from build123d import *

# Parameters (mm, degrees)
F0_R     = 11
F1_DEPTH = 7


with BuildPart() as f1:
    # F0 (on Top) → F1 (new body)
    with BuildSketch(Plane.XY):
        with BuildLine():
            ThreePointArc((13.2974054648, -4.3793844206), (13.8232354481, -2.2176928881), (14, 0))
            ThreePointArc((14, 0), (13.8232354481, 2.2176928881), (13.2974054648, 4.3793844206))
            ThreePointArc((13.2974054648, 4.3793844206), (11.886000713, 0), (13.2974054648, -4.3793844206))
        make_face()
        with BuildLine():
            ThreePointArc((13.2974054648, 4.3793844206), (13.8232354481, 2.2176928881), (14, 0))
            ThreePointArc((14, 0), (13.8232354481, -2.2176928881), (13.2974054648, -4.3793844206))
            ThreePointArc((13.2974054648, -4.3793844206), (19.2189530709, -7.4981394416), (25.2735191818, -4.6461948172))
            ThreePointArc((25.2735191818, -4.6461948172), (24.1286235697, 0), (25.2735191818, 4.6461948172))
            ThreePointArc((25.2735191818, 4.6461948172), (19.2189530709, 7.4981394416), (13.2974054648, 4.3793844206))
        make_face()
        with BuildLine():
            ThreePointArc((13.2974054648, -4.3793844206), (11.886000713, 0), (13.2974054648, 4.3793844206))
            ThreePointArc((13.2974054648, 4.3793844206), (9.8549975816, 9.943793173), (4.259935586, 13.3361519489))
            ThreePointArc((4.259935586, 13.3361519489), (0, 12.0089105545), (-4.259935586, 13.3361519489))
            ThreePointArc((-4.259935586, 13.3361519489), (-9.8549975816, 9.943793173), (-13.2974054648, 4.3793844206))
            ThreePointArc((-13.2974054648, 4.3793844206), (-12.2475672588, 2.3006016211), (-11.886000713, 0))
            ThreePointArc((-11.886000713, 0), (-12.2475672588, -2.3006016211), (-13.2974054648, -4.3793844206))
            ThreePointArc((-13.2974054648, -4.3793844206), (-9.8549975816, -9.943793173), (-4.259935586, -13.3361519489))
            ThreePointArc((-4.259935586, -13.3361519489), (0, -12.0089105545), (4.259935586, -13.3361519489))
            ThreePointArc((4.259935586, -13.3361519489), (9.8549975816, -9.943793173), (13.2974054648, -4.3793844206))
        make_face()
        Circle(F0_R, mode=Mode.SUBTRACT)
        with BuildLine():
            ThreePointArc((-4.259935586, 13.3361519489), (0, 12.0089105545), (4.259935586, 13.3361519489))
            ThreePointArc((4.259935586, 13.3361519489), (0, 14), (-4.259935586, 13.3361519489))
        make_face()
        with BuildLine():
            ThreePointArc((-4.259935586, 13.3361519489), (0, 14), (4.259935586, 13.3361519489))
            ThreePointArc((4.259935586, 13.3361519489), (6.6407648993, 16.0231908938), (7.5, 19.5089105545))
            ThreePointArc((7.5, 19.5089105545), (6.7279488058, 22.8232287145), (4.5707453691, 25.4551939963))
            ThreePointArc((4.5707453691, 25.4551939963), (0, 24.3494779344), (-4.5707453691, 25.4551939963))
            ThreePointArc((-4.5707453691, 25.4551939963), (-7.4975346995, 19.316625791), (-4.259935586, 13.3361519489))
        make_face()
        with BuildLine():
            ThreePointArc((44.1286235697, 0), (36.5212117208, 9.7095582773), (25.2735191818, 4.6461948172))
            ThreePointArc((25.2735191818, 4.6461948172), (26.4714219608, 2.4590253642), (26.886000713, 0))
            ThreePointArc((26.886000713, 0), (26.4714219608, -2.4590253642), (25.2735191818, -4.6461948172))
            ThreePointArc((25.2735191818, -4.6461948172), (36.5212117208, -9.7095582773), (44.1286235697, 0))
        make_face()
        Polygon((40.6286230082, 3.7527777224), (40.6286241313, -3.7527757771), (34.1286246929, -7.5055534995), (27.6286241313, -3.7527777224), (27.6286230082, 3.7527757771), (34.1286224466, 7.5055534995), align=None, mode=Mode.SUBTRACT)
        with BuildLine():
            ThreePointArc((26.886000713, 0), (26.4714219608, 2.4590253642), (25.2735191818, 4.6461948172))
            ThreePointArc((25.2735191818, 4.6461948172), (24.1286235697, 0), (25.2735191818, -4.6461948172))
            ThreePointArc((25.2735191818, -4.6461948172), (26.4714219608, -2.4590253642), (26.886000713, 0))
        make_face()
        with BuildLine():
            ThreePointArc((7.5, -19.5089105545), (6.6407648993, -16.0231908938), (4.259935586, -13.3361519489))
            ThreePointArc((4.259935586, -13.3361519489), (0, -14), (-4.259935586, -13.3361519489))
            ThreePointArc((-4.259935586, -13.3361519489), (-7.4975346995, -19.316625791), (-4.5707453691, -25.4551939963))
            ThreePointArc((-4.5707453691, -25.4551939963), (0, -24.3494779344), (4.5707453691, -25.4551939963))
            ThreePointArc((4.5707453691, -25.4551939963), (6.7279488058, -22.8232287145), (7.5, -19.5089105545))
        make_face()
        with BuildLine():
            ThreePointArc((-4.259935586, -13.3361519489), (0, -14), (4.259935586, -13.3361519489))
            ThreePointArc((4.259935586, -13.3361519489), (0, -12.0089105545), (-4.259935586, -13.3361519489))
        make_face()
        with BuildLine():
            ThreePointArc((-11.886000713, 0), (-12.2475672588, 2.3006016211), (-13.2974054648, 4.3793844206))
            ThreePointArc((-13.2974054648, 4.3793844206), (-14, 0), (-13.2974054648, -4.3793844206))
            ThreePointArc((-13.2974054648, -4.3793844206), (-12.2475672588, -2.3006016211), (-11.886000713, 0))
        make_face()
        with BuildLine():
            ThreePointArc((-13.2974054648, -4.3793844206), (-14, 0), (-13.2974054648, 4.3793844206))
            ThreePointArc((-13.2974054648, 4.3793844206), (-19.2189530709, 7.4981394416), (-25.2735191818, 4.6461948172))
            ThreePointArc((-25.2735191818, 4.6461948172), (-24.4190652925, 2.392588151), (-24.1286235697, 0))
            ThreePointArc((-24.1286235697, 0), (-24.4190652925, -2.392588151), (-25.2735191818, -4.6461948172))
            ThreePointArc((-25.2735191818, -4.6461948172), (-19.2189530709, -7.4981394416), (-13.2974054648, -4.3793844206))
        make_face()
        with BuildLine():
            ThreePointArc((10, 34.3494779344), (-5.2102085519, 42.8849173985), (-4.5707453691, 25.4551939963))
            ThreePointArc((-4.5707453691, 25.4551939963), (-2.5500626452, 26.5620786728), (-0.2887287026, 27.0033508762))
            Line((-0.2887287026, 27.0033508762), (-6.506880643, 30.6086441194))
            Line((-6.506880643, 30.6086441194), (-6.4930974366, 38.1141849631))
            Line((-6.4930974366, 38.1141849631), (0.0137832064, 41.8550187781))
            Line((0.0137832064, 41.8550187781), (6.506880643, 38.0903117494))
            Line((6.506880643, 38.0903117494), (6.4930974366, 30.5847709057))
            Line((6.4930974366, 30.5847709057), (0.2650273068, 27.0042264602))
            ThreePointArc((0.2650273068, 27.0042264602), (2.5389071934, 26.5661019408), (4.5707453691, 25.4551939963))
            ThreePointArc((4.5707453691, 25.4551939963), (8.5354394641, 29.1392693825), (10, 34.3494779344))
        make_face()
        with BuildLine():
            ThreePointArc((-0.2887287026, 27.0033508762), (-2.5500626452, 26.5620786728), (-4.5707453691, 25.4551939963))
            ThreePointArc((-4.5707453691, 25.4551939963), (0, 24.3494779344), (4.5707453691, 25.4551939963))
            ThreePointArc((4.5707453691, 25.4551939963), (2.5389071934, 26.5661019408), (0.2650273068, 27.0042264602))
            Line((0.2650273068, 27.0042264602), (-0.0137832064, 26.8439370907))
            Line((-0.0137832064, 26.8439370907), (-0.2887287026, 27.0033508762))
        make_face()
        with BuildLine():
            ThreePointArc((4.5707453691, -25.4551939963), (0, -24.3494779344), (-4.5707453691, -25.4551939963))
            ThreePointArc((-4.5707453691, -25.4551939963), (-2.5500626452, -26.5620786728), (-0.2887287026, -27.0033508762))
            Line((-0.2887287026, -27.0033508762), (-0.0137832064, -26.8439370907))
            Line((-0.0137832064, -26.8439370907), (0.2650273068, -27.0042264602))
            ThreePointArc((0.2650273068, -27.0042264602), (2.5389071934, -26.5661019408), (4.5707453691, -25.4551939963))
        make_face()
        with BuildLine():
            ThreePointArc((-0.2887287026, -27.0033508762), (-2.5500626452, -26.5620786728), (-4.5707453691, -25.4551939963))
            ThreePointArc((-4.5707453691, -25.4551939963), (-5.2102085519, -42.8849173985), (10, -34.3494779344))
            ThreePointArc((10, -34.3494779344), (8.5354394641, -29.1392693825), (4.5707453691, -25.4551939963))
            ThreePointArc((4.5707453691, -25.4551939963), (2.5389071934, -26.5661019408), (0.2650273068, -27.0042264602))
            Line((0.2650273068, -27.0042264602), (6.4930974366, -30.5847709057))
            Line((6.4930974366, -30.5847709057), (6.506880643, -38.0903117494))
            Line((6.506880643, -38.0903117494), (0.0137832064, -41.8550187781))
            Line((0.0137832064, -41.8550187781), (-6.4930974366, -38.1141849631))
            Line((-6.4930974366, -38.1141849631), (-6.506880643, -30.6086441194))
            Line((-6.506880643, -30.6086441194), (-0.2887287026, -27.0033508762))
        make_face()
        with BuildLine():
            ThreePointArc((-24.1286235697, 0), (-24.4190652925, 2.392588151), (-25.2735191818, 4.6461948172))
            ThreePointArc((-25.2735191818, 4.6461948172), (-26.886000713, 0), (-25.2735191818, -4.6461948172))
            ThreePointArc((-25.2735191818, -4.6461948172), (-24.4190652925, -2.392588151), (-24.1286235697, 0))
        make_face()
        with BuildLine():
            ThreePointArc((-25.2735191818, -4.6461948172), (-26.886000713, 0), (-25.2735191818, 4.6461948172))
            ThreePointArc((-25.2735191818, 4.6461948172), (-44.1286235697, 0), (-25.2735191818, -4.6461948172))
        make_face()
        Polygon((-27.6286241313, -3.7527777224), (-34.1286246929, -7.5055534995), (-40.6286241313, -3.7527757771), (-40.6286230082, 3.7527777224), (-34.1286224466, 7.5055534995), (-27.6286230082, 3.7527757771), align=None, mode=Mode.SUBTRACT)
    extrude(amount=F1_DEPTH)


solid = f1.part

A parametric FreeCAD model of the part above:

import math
import FreeCAD as App
import Part
import Sketcher
Q = App.Units.Quantity

doc = App.newDocument("Part")
body = doc.addObject("PartDesign::Body", "Body")

sketch1 = doc.addObject("Sketcher::SketchObject", "Sketch")
body.addObject(sketch1)
sketch1.AttachmentSupport = (doc.XY_Plane, [""])
sketch1.MapMode = "FlatFace"
sketch1.addGeometry([
    Part.ArcOfCircle(Part.Circle(App.Vector(19.39, 0, 0), App.Vector(0, 0, 1), 7.5), math.radians(-144), math.radians(-38)),
    Part.ArcOfCircle(Part.Circle(App.Vector(34.13, 0, 0), App.Vector(0, 0, 1), 10), math.radians(-152), math.radians(0)),
    Part.ArcOfCircle(Part.Circle(App.Vector(34.13, 0, 0), App.Vector(0, 0, 1), 10), math.radians(0), math.radians(152)),
    Part.ArcOfCircle(Part.Circle(App.Vector(19.39, 0, 0), App.Vector(0, 0, 1), 7.5), math.radians(38), math.radians(144)),
    Part.ArcOfCircle(Part.Circle(App.Vector(0, 0, 0), App.Vector(0, 0, 1), 14), math.radians(18), math.radians(72)),
    Part.ArcOfCircle(Part.Circle(App.Vector(0, 19.51, 0), App.Vector(0, 0, 1), 7.5), math.radians(-55), math.radians(0)),
    Part.ArcOfCircle(Part.Circle(App.Vector(0, 19.51, 0), App.Vector(0, 0, 1), 7.5), math.radians(0), math.radians(52)),
    Part.ArcOfCircle(Part.Circle(App.Vector(0, 34.35, 0), App.Vector(0, 0, 1), 10), math.radians(-63), math.radians(0)),
    Part.ArcOfCircle(Part.Circle(App.Vector(0, 34.35, 0), App.Vector(0, 0, 1), 10), math.radians(0), math.radians(243)),
    Part.ArcOfCircle(Part.Circle(App.Vector(0, 19.51, 0), App.Vector(0, 0, 1), 7.5), math.radians(128), math.radians(235)),
    Part.ArcOfCircle(Part.Circle(App.Vector(0, 0, 0), App.Vector(0, 0, 1), 14), math.radians(108), math.radians(162)),
    Part.ArcOfCircle(Part.Circle(App.Vector(-19.39, 0, 0), App.Vector(0, 0, 1), 7.5), math.radians(36), math.radians(142)),
    Part.ArcOfCircle(Part.Circle(App.Vector(-34.13, 0, 0), App.Vector(0, 0, 1), 10), math.radians(28), math.radians(332)),
    Part.ArcOfCircle(Part.Circle(App.Vector(-19.39, 0, 0), App.Vector(0, 0, 1), 7.5), math.radians(-142), math.radians(-36)),
    Part.ArcOfCircle(Part.Circle(App.Vector(0, 0, 0), App.Vector(0, 0, 1), 14), math.radians(-162), math.radians(-108)),
    Part.ArcOfCircle(Part.Circle(App.Vector(0, -19.51, 0), App.Vector(0, 0, 1), 7.5), math.radians(125), math.radians(232)),
    Part.ArcOfCircle(Part.Circle(App.Vector(0, -34.35, 0), App.Vector(0, 0, 1), 10), math.radians(117), math.radians(360)),
    Part.ArcOfCircle(Part.Circle(App.Vector(0, -34.35, 0), App.Vector(0, 0, 1), 10), math.radians(0), math.radians(63)),
    Part.ArcOfCircle(Part.Circle(App.Vector(0, -19.51, 0), App.Vector(0, 0, 1), 7.5), math.radians(-52), math.radians(0)),
    Part.ArcOfCircle(Part.Circle(App.Vector(0, -19.51, 0), App.Vector(0, 0, 1), 7.5), math.radians(0), math.radians(55)),
    Part.ArcOfCircle(Part.Circle(App.Vector(0, 0, 0), App.Vector(0, 0, 1), 14), math.radians(-72), math.radians(-18)),
    Part.LineSegment(App.Vector(-27.63, 3.75, 0), App.Vector(-27.63, -3.75, 0)),
    Part.LineSegment(App.Vector(-27.63, -3.75, 0), App.Vector(-34.13, -7.51, 0)),
    Part.LineSegment(App.Vector(-34.13, -7.51, 0), App.Vector(-40.63, -3.75, 0)),
    Part.LineSegment(App.Vector(-40.63, -3.75, 0), App.Vector(-40.63, 3.75, 0)),
    Part.LineSegment(App.Vector(-40.63, 3.75, 0), App.Vector(-34.13, 7.51, 0)),
    Part.LineSegment(App.Vector(-34.13, 7.51, 0), App.Vector(-27.63, 3.75, 0)),
    Part.LineSegment(App.Vector(-0.29, -27, 0), App.Vector(-0.01, -26.84, 0)),
    Part.LineSegment(App.Vector(-0.01, -26.84, 0), App.Vector(0.27, -27, 0)),
    Part.LineSegment(App.Vector(0.27, -27, 0), App.Vector(6.49, -30.58, 0)),
    Part.LineSegment(App.Vector(6.49, -30.58, 0), App.Vector(6.51, -38.09, 0)),
    Part.LineSegment(App.Vector(6.51, -38.09, 0), App.Vector(0.01, -41.86, 0)),
    Part.LineSegment(App.Vector(0.01, -41.86, 0), App.Vector(-6.49, -38.11, 0)),
    Part.LineSegment(App.Vector(-6.49, -38.11, 0), App.Vector(-6.51, -30.61, 0)),
    Part.LineSegment(App.Vector(-6.51, -30.61, 0), App.Vector(-0.29, -27, 0)),
    Part.Circle(App.Vector(0, 0, 0), App.Vector(0, 0, 1), 11),
    Part.LineSegment(App.Vector(40.63, 3.75, 0), App.Vector(40.63, -3.75, 0)),
    Part.LineSegment(App.Vector(40.63, -3.75, 0), App.Vector(34.13, -7.51, 0)),
    Part.LineSegment(App.Vector(34.13, -7.51, 0), App.Vector(27.63, -3.75, 0)),
    Part.LineSegment(App.Vector(27.63, -3.75, 0), App.Vector(27.63, 3.75, 0)),
    Part.LineSegment(App.Vector(27.63, 3.75, 0), App.Vector(34.13, 7.51, 0)),
    Part.LineSegment(App.Vector(34.13, 7.51, 0), App.Vector(40.63, 3.75, 0)),
    Part.LineSegment(App.Vector(-0.01, 26.84, 0), App.Vector(-0.29, 27, 0)),
    Part.LineSegment(App.Vector(-0.29, 27, 0), App.Vector(-6.51, 30.61, 0)),
    Part.LineSegment(App.Vector(-6.51, 30.61, 0), App.Vector(-6.49, 38.11, 0)),
    Part.LineSegment(App.Vector(-6.49, 38.11, 0), App.Vector(0.01, 41.86, 0)),
    Part.LineSegment(App.Vector(0.01, 41.86, 0), App.Vector(6.51, 38.09, 0)),
    Part.LineSegment(App.Vector(6.51, 38.09, 0), App.Vector(6.49, 30.58, 0)),
    Part.LineSegment(App.Vector(6.49, 30.58, 0), App.Vector(0.27, 27, 0)),
    Part.LineSegment(App.Vector(0.27, 27, 0), App.Vector(-0.01, 26.84, 0)),
], False)
sketch1.addConstraint([
    Sketcher.Constraint("Coincident", 0, 2, 1, 1),
    Sketcher.Constraint("Tangent", 1, 2, 2, 1),
    Sketcher.Constraint("Coincident", 2, 2, 3, 1),
    Sketcher.Constraint("Coincident", 3, 2, 4, 1),
    Sketcher.Constraint("Coincident", 4, 2, 5, 1),
    Sketcher.Constraint("Tangent", 5, 2, 6, 1),
    Sketcher.Constraint("Coincident", 6, 2, 7, 1),
    Sketcher.Constraint("Tangent", 7, 2, 8, 1),
    Sketcher.Constraint("Coincident", 8, 2, 9, 1),
    Sketcher.Constraint("Coincident", 9, 2, 10, 1),
    Sketcher.Constraint("Coincident", 10, 2, 11, 1),
    Sketcher.Constraint("Coincident", 11, 2, 12, 1),
    Sketcher.Constraint("Coincident", 12, 2, 13, 1),
    Sketcher.Constraint("Coincident", 13, 2, 14, 1),
    Sketcher.Constraint("Coincident", 14, 2, 15, 1),
    Sketcher.Constraint("Coincident", 15, 2, 16, 1),
    Sketcher.Constraint("Tangent", 16, 2, 17, 1),
    Sketcher.Constraint("Coincident", 17, 2, 18, 1),
    Sketcher.Constraint("Tangent", 18, 2, 19, 1),
    Sketcher.Constraint("Coincident", 19, 2, 20, 1),
    Sketcher.Constraint("Coincident", 20, 2, 0, 1),
    Sketcher.Constraint("Coincident", 21, 2, 22, 1),
    Sketcher.Constraint("Coincident", 22, 2, 23, 1),
    Sketcher.Constraint("Coincident", 23, 2, 24, 1),
    Sketcher.Constraint("Coincident", 24, 2, 25, 1),
    Sketcher.Constraint("Coincident", 25, 2, 26, 1),
    Sketcher.Constraint("Coincident", 26, 2, 21, 1),
    Sketcher.Constraint("Coincident", 27, 2, 28, 1),
    Sketcher.Constraint("Coincident", 28, 2, 29, 1),
    Sketcher.Constraint("Coincident", 29, 2, 30, 1),
    Sketcher.Constraint("Coincident", 30, 2, 31, 1),
    Sketcher.Constraint("Coincident", 31, 2, 32, 1),
    Sketcher.Constraint("Coincident", 32, 2, 33, 1),
    Sketcher.Constraint("Coincident", 33, 2, 34, 1),
    Sketcher.Constraint("Coincident", 34, 2, 27, 1),
    Sketcher.Constraint("Coincident", 36, 2, 37, 1),
    Sketcher.Constraint("Coincident", 37, 2, 38, 1),
    Sketcher.Constraint("Coincident", 38, 2, 39, 1),
    Sketcher.Constraint("Coincident", 39, 2, 40, 1),
    Sketcher.Constraint("Coincident", 40, 2, 41, 1),
    Sketcher.Constraint("Coincident", 41, 2, 36, 1),
    Sketcher.Constraint("Coincident", 42, 2, 43, 1),
    Sketcher.Constraint("Coincident", 43, 2, 44, 1),
    Sketcher.Constraint("Coincident", 44, 2, 45, 1),
    Sketcher.Constraint("Coincident", 45, 2, 46, 1),
    Sketcher.Constraint("Coincident", 46, 2, 47, 1),
    Sketcher.Constraint("Coincident", 47, 2, 48, 1),
    Sketcher.Constraint("Coincident", 48, 2, 49, 1),
    Sketcher.Constraint("Coincident", 49, 2, 42, 1),
    Sketcher.Constraint("Vertical", 21),
    Sketcher.Constraint("Vertical", 24),
    Sketcher.Constraint("Vertical", 36),
    Sketcher.Constraint("Vertical", 39),
    Sketcher.Constraint("Coincident", 4, 3, -1, 1),
    Sketcher.Constraint("Coincident", 10, 3, -1, 1),
    Sketcher.Constraint("Coincident", 14, 3, -1, 1),
    Sketcher.Constraint("Coincident", 20, 3, -1, 1),
    Sketcher.Constraint("Coincident", 35, 3, -1, 1),
    Sketcher.Constraint("Coincident", 3, 3, 0, 3),
    Sketcher.Constraint("Coincident", 9, 3, 5, 3),
    Sketcher.Constraint("Coincident", 13, 3, 11, 3),
    Sketcher.Constraint("Coincident", 18, 3, 15, 3),
    Sketcher.Constraint("Equal", 1, 2),
    Sketcher.Constraint("Equal", 0, 3),
    Sketcher.Constraint("Equal", 3, 5),
    Sketcher.Constraint("Equal", 5, 6),
    Sketcher.Constraint("Equal", 2, 7),
    Sketcher.Constraint("Equal", 7, 8),
    Sketcher.Constraint("Equal", 6, 9),
    Sketcher.Constraint("Equal", 4, 10),
    Sketcher.Constraint("Equal", 9, 11),
    Sketcher.Constraint("Equal", 8, 12),
    Sketcher.Constraint("Equal", 11, 13),
    Sketcher.Constraint("Equal", 10, 14),
    Sketcher.Constraint("Equal", 13, 15),
    Sketcher.Constraint("Equal", 12, 16),
    Sketcher.Constraint("Equal", 16, 17),
    Sketcher.Constraint("Equal", 15, 18),
    Sketcher.Constraint("Equal", 18, 19),
    Sketcher.Constraint("Equal", 14, 20),
    Sketcher.Constraint("Symmetric", 0, 3, 11, 3, -1, 1),
    Sketcher.Constraint("Symmetric", 1, 3, 12, 3, -1, 1),
    Sketcher.Constraint("Symmetric", 5, 3, 15, 3, -1, 1),
    Sketcher.Constraint("Symmetric", 7, 3, 16, 3, -1, 1),
    Sketcher.Constraint("Symmetric", 24, 2, 36, 2, -1, 1),
    Sketcher.Constraint("Symmetric", 25, 2, 37, 2, -1, 1),
    Sketcher.Constraint("Symmetric", 26, 2, 38, 2, -1, 1),
    Sketcher.Constraint("Symmetric", 22, 2, 40, 2, -1, 1),
    Sketcher.Constraint("Symmetric", 6, 2, 8, 2, -2),
    Sketcher.Constraint("Symmetric", 2, 2, 11, 2, -2),
    Sketcher.Constraint("Symmetric", 22, 2, 37, 2, -2),
    Sketcher.Constraint("Symmetric", 34, 2, 42, 2, -1),
    Sketcher.Constraint("Symmetric", 33, 2, 43, 2, -1),
    Sketcher.Constraint("Symmetric", 32, 2, 44, 2, -1),
    Sketcher.Constraint("Symmetric", 31, 2, 45, 2, -1),
    Sketcher.Constraint("Symmetric", 30, 2, 46, 2, -1),
    Sketcher.Constraint("Symmetric", 29, 2, 47, 2, -1),
    Sketcher.Constraint("Symmetric", 28, 2, 48, 2, -1),
    Sketcher.Constraint("Symmetric", 27, 2, 49, 2, -1),
    Sketcher.Constraint("PointOnObject", 1, 2, -1),
    Sketcher.Constraint("Parallel", 22, 25),
    Sketcher.Constraint("Parallel", 23, 26),
    Sketcher.Constraint("Parallel", 28, 29),
    Sketcher.Constraint("Parallel", 27, 31),
    Sketcher.Constraint("Parallel", 29, 32),
    Sketcher.Constraint("Parallel", 30, 33),
    Sketcher.Constraint("Parallel", 31, 34),
    Sketcher.Constraint("Parallel", 37, 40),
    Sketcher.Constraint("Parallel", 38, 41),
    Sketcher.Constraint("Horizontal", 9, 3, 5, 2),
    Sketcher.Constraint("Horizontal", 8, 3, 7, 2),
    Sketcher.Constraint("Horizontal", 17, 3, 16, 2),
    Sketcher.Constraint("Horizontal", 19, 3, 18, 2),
    Sketcher.Constraint("Horizontal", 21, 2, 23, 2),
    Sketcher.Constraint("Horizontal", 24, 2, 26, 2),
    Sketcher.Constraint("Vertical", 12, 3, 22, 2),
    Sketcher.Constraint("Equal", 26, 30),
    Sketcher.Constraint("Equal", 30, 31),
    Sketcher.Constraint("Equal", 31, 32),
    Sketcher.Constraint("Equal", 32, 33),
    Sketcher.Constraint("Diameter", 35, Q("22 mm")),
    Sketcher.Constraint("Radius", 1, Q("10 mm")),
    Sketcher.Constraint("Radius", 4, Q("14 mm")),
    Sketcher.Constraint("Radius", 0, Q("7.5 mm")),
    Sketcher.Constraint("Angle", 22, Q("-150.000009 deg")),
    Sketcher.Constraint("DistanceX", -1, 1, 0, 3, Q("19.386001 mm")),
    Sketcher.Constraint("Distance", 29, Q("7.183951 mm")),
    Sketcher.Constraint("DistanceY", 21, 2, 21, 1, Q("7.505553 mm")),
    Sketcher.Constraint("DistanceY", -1, 1, 5, 3, Q("19.508911 mm")),
    Sketcher.Constraint("DistanceX", -1, 1, 0, 2, Q("25.273519 mm")),
    Sketcher.Constraint("DistanceY", 29, 2, -1, 1, Q("30.584771 mm")),
    Sketcher.Constraint("DistanceX", -1, 1, 30, 2, Q("6.506881 mm")),
    Sketcher.Constraint("DistanceY", 30, 2, -1, 1, Q("38.090312 mm")),
    Sketcher.Constraint("DistanceY", 31, 2, -1, 1, Q("41.855019 mm")),
    Sketcher.Constraint("DistanceX", 33, 2, -1, 1, Q("6.506881 mm")),
    Sketcher.Constraint("DistanceX", 34, 2, -1, 1, Q("0.288729 mm")),
    Sketcher.Constraint("DistanceY", 34, 2, -1, 1, Q("27.003351 mm")),
    Sketcher.Constraint("DistanceY", -1, 1, 7, 3, Q("34.349478 mm")),
])
pad1 = doc.addObject("PartDesign::Pad", "Pad")
body.addObject(pad1)
pad1.Profile = sketch1
pad1.Length = 7

doc.recompute()
